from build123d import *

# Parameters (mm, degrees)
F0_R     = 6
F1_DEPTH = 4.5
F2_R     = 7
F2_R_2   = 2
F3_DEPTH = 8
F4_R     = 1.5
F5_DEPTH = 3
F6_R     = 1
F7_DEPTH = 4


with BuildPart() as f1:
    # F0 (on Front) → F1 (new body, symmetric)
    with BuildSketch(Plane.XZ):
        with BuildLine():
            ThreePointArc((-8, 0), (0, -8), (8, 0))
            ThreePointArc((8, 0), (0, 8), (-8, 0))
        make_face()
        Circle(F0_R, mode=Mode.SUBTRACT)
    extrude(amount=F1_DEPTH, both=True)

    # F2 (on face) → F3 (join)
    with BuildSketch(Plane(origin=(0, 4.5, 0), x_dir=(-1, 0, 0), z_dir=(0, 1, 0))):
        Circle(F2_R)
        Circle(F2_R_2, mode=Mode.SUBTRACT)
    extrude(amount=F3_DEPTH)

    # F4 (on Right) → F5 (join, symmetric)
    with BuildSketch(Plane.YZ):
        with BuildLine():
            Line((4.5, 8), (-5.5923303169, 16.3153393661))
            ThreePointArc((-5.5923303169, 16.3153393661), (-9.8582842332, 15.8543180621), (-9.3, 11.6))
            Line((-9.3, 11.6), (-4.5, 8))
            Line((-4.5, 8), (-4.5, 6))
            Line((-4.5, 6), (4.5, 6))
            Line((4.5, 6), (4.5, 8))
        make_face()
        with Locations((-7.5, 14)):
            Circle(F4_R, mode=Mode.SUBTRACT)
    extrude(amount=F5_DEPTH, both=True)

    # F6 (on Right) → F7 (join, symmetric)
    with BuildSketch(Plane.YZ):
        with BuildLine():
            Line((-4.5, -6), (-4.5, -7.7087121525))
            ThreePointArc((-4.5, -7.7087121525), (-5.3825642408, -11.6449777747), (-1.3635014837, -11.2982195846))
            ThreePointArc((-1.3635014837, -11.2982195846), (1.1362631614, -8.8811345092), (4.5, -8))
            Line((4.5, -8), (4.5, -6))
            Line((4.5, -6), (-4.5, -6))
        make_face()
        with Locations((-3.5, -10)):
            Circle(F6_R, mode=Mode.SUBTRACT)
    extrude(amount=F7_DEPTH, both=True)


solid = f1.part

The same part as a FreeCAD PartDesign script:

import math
import FreeCAD as App
import Part
import Sketcher
from FreeCAD import Vector

doc = App.newDocument("Part")
body = doc.addObject("PartDesign::Body", "Body")

sketch1 = body.newObject("Sketcher::SketchObject", "Sketch")
sketch1.AttachmentSupport = (doc.getObject("XZ_Plane"), [""])
sketch1.MapMode = "FlatFace"
sketch1.addGeometry([
    Part.Circle(Vector(0, 0, 0), Vector(0, 0, 1), 8),
    Part.Circle(Vector(0, 0, 0), Vector(0, 0, 1), 6),
], False)
sketch1.addConstraint([
    Sketcher.Constraint("Coincident", 0, 3, -1, 1),
    Sketcher.Constraint("Coincident", 1, 3, -1, 1),
    Sketcher.Constraint("Diameter", 0, 16.0),
    Sketcher.Constraint("Diameter", 1, 12.0),
])
pad1 = body.newObject("PartDesign::Pad", "Pad")
pad1.Profile = sketch1
pad1.Length = 9
pad1.Midplane = True

sketch2 = body.newObject("Sketcher::SketchObject", "Sketch001")
sketch2.AttachmentSupport = (doc.getObject("XZ_Plane"), [""])
sketch2.MapMode = "FlatFace"
sketch2.AttachmentOffset = App.Placement(Vector(0, 0, -4.5), App.Rotation())
sketch2.addGeometry([
    Part.Circle(Vector(0, 0, 0), Vector(0, 0, 1), 7),
    Part.Circle(Vector(0, 0, 0), Vector(0, 0, 1), 2),
], False)
sketch2.addConstraint([
    Sketcher.Constraint("Coincident", 0, 3, -1, 1),
    Sketcher.Constraint("Coincident", 1, 3, -1, 1),
    Sketcher.Constraint("Diameter", 0, 14.0),
    Sketcher.Constraint("Diameter", 1, 4.0),
])
pad2 = body.newObject("PartDesign::Pad", "Pad001")
pad2.Profile = sketch2
pad2.Length = 8
pad2.Reversed = True

sketch3 = body.newObject("Sketcher::SketchObject", "Sketch002")
sketch3.AttachmentSupport = (doc.getObject("YZ_Plane"), [""])
sketch3.MapMode = "FlatFace"
sketch3.addGeometry([
    Part.LineSegment(Vector(4.5, 8, 0), Vector(-5.59233, 16.315339, 0)),
    Part.ArcOfCircle(Part.Circle(Vector(-7.5, 14, 0), Vector(0, 0, 1), 3), math.radians(50.513982), math.radians(233.130102)),
    Part.LineSegment(Vector(-9.3, 11.6, 0), Vector(-4.5, 8, 0)),
    Part.LineSegment(Vector(-4.5, 8, 0), Vector(-4.5, 6, 0)),
    Part.LineSegment(Vector(-4.5, 6, 0), Vector(4.5, 6, 0)),
    Part.LineSegment(Vector(4.5, 6, 0), Vector(4.5, 8, 0)),
    Part.Circle(Vector(-7.5, 14, 0), Vector(0, 0, 1), 1.5),
], False)
sketch3.addConstraint([
    Sketcher.Constraint("Tangent", 0, 2, 1, 1),
    Sketcher.Constraint("Tangent", 1, 2, 2, 1),
    Sketcher.Constraint("Coincident", 2, 2, 3, 1),
    Sketcher.Constraint("Coincident", 3, 2, 4, 1),
    Sketcher.Constraint("Coincident", 4, 2, 5, 1),
    Sketcher.Constraint("Coincident", 5, 2, 0, 1),
    Sketcher.Constraint("Vertical", 3),
    Sketcher.Constraint("Horizontal", 4),
    Sketcher.Constraint("Vertical", 5),
    Sketcher.Constraint("Coincident", 6, 3, 1, 3),
    Sketcher.Constraint("Symmetric", 2, 2, 5, 2, -2),
    Sketcher.Constraint("Diameter", 6, 3.0),
    Sketcher.Constraint("Radius", 1, 3.0),
    Sketcher.Constraint("DistanceX", 4, 1, 4, 2, 9.0),
    Sketcher.Constraint("DistanceY", 3, 2, 3, 1, 2.0),
    Sketcher.Constraint("Distance", 2, 6.0),
    Sketcher.Constraint("DistanceY", -1, 1, 1, 3, 14.0),
    Sketcher.Constraint("DistanceY", -1, 1, 2, 2, 8.0),
])
pad3 = body.newObject("PartDesign::Pad", "Pad002")
pad3.Profile = sketch3
pad3.Length = 6
pad3.Midplane = True

sketch4 = body.newObject("Sketcher::SketchObject", "Sketch003")
sketch4.AttachmentSupport = (doc.getObject("YZ_Plane"), [""])
sketch4.MapMode = "FlatFace"
sketch4.addGeometry([
    Part.LineSegment(Vector(-4.5, -6, 0), Vector(-4.5, -7.708712, 0)),
    Part.ArcOfCircle(Part.Circle(Vector(-3.5, -10, 0), Vector(0, 0, 1), 2.5), math.radians(113.578178), math.radians(328.715507)),
    Part.ArcOfCircle(Part.Circle(Vector(4.5, -14.861111, 0), Vector(0, 0, 1), 6.861111), math.radians(90), math.radians(148.715507)),
    Part.LineSegment(Vector(4.5, -8, 0), Vector(4.5, -6, 0)),
    Part.LineSegment(Vector(4.5, -6, 0), Vector(-4.5, -6, 0)),
    Part.Circle(Vector(-3.5, -10, 0), Vector(0, 0, 1), 1),
], False)
sketch4.addConstraint([
    Sketcher.Constraint("Coincident", 0, 2, 1, 1),
    Sketcher.Constraint("Tangent", 1, 2, 2, 2),
    Sketcher.Constraint("Coincident", 2, 1, 3, 1),
    Sketcher.Constraint("Coincident", 3, 2, 4, 1),
    Sketcher.Constraint("Coincident", 4, 2, 0, 1),
    Sketcher.Constraint("Vertical", 0),
    Sketcher.Constraint("Vertical", 3),
    Sketcher.Constraint("Horizontal", 4),
    Sketcher.Constraint("Coincident", 5, 3, 1, 3),
    Sketcher.Constraint("Diameter", 5, 2.0),
    Sketcher.Constraint("Radius", 1, 2.5),
    Sketcher.Constraint("DistanceX", 4, 2, 4, 1, 9.0),
    Sketcher.Constraint("DistanceY", 3, 1, 3, 2, 2.0),
    Sketcher.Constraint("DistanceY", 1, 3, -1, 1, 10.0),
    Sketcher.Constraint("DistanceY", 2, 1, -1, 1, 8.0),
    Sketcher.Constraint("DistanceX", 1, 3, 2, 3, 8.0),
    Sketcher.Constraint("DistanceX", 0, 2, 1, 3, 1.0),
    Sketcher.Constraint("DistanceX", 1, 3, -1, 1, 3.5),
])
pad4 = body.newObject("PartDesign::Pad", "Pad003")
pad4.Profile = sketch4
pad4.Length = 8
pad4.Midplane = True

doc.recompute()
